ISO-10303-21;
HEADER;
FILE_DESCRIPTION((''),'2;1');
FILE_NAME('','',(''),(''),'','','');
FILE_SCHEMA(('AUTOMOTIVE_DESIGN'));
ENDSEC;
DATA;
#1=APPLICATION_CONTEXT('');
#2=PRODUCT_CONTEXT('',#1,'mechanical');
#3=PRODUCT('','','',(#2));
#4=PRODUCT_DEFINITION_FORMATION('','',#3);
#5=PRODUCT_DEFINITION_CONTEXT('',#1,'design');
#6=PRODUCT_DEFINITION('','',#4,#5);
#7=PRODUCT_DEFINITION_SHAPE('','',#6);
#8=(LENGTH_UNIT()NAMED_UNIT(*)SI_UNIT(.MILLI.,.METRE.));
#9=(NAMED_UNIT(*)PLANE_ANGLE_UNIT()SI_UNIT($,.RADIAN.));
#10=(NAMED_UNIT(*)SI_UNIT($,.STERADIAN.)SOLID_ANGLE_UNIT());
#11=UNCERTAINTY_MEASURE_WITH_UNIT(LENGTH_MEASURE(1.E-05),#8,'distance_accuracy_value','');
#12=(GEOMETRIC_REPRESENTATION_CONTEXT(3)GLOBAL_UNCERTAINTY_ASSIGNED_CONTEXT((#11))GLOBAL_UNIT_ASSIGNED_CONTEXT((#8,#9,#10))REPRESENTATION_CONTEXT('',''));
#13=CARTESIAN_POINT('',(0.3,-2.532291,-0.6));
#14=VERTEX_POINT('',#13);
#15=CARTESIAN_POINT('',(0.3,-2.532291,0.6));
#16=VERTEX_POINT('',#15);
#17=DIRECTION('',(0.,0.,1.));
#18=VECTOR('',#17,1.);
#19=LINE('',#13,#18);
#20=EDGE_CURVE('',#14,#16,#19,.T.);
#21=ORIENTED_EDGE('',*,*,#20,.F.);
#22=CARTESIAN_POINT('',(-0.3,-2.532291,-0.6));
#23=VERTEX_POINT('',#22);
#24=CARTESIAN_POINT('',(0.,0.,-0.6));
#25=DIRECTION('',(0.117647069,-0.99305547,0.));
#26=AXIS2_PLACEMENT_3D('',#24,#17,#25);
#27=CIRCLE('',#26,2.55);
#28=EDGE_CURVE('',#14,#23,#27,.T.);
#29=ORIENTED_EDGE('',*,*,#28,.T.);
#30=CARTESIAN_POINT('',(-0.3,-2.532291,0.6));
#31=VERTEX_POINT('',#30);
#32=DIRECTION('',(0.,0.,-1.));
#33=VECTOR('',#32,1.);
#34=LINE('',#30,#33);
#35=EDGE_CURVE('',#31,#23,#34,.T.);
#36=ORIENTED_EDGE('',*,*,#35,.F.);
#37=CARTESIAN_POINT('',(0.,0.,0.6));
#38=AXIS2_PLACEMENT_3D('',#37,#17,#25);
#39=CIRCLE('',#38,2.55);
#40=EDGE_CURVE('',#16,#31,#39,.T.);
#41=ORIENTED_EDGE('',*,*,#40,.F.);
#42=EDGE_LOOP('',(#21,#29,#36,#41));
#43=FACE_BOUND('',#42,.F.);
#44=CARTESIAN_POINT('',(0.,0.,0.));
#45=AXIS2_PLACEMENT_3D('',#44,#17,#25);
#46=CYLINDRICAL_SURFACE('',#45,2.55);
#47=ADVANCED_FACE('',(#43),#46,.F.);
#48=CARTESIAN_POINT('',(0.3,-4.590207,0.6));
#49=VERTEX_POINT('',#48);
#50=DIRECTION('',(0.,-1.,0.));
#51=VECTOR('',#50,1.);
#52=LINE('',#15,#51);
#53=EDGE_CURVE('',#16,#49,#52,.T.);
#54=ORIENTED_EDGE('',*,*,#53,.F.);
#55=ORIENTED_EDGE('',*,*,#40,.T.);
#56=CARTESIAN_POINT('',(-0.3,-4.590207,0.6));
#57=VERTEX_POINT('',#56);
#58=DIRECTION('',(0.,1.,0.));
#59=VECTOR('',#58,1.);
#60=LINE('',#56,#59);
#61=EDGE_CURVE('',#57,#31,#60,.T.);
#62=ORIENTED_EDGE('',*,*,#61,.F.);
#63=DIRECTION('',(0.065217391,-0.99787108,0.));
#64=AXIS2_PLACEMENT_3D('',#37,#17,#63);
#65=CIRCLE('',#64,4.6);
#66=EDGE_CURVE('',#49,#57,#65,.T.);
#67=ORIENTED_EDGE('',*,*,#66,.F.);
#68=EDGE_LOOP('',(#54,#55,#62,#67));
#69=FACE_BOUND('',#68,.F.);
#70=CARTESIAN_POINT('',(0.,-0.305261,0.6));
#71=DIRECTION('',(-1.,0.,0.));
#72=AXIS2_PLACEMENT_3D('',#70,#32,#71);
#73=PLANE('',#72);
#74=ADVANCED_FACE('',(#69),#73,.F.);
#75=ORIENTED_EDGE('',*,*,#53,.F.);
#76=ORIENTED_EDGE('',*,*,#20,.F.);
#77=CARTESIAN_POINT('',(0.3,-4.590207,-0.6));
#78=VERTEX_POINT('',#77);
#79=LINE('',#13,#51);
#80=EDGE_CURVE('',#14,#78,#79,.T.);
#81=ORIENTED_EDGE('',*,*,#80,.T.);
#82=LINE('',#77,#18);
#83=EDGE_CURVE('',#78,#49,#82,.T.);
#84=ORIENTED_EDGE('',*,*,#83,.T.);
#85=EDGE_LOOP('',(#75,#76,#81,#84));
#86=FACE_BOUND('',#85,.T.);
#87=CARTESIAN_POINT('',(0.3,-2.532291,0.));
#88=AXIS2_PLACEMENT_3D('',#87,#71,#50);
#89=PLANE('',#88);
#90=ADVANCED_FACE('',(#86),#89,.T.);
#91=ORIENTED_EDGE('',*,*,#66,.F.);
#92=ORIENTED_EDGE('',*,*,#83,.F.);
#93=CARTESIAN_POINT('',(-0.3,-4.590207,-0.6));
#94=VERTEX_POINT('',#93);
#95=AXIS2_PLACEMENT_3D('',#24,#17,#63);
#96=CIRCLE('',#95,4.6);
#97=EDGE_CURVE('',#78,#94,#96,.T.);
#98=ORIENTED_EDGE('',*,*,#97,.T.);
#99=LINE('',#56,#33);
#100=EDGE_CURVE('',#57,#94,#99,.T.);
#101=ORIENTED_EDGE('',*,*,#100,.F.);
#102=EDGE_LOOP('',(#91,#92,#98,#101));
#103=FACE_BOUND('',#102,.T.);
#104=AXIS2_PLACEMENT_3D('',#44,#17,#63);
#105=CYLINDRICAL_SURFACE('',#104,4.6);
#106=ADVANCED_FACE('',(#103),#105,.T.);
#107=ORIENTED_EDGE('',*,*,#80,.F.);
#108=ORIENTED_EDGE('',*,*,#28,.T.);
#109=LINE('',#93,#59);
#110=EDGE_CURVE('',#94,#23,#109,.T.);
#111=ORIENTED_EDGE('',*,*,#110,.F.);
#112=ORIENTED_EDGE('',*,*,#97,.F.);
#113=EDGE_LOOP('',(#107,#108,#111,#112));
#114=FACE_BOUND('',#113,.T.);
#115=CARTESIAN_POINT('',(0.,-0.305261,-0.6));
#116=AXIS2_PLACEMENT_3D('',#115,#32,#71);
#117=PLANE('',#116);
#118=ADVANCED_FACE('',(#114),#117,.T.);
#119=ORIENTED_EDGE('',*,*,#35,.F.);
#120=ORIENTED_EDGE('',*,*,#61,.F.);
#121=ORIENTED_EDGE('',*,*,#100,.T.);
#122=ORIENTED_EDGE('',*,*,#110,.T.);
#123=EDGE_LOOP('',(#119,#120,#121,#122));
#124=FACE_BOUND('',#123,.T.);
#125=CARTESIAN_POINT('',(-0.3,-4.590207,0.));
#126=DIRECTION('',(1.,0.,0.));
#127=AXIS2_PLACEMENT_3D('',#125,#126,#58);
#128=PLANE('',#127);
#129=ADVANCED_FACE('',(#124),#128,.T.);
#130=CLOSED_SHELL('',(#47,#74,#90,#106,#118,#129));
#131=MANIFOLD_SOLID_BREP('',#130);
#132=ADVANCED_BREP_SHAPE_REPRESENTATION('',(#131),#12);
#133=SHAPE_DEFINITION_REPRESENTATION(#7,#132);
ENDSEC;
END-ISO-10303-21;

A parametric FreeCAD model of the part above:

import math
import FreeCAD as App
import Part
import Sketcher

doc = App.newDocument("Part")
params = doc.addObject("Spreadsheet::Sheet", "Params")
for row, (alias, value) in enumerate([
    ("sketch1_radius", "4.6 mm"),
    ("sketch1_radius2", "2.55 mm"),
    ("pad1_length", "1.2 mm"),
], start=1):
    params.set(f"A{row}", alias)
    params.set(f"B{row}", "=" + value)
    params.setAlias(f"B{row}", alias)

body = doc.addObject("PartDesign::Body", "Body")

sketch1 = body.newObject("Sketcher::SketchObject", "Sketch")
sketch1.AttachmentSupport = (doc.getObject("XY_Plane"), [""])
sketch1.MapMode = "FlatFace"
sketch1.addGeometry([
    Part.ArcOfCircle(Part.Circle(App.Vector(0, 0, 0), App.Vector(0, 0, 1), 2.5), math.radians(-83), math.radians(263)),
    Part.LineSegment(App.Vector(0.3, -2.5, 0), App.Vector(0.3, -4.6, 0)),
    Part.ArcOfCircle(Part.Circle(App.Vector(0, 0, 0), App.Vector(0, 0, 1), 4.6), math.radians(-86), math.radians(266)),
    Part.LineSegment(App.Vector(-0.3, -4.6, 0), App.Vector(-0.3, -2.5, 0)),
], False)
sketch1.addConstraint([
    Sketcher.Constraint("Coincident", 0, 1, 1, 1),
    Sketcher.Constraint("Coincident", 1, 2, 2, 1),
    Sketcher.Constraint("Coincident", 2, 2, 3, 1),
    Sketcher.Constraint("Coincident", 3, 2, 0, 2),
    Sketcher.Constraint("Vertical", 1),
    Sketcher.Constraint("Vertical", 3),
    Sketcher.Constraint("Coincident", 0, 3, -1, 1),
    Sketcher.Constraint("Coincident", 2, 3, -1, 1),
    Sketcher.Constraint("Horizontal", 1, 2, 2, 2),
    Sketcher.Constraint("Radius", 2, 4.6),
    Sketcher.Constraint("Radius", 0, 2.55),
    Sketcher.Constraint("DistanceX", -1, 1, 0, 1, 0.3),
])
sketch1.setExpression("Constraints[9]", "Params.sketch1_radius")
sketch1.setExpression("Constraints[10]", "Params.sketch1_radius2")
pad1 = body.newObject("PartDesign::Pad", "Pad")
pad1.Profile = sketch1
pad1.setExpression("Length", "Params.pad1_length")
pad1.Midplane = True

doc.recompute()
